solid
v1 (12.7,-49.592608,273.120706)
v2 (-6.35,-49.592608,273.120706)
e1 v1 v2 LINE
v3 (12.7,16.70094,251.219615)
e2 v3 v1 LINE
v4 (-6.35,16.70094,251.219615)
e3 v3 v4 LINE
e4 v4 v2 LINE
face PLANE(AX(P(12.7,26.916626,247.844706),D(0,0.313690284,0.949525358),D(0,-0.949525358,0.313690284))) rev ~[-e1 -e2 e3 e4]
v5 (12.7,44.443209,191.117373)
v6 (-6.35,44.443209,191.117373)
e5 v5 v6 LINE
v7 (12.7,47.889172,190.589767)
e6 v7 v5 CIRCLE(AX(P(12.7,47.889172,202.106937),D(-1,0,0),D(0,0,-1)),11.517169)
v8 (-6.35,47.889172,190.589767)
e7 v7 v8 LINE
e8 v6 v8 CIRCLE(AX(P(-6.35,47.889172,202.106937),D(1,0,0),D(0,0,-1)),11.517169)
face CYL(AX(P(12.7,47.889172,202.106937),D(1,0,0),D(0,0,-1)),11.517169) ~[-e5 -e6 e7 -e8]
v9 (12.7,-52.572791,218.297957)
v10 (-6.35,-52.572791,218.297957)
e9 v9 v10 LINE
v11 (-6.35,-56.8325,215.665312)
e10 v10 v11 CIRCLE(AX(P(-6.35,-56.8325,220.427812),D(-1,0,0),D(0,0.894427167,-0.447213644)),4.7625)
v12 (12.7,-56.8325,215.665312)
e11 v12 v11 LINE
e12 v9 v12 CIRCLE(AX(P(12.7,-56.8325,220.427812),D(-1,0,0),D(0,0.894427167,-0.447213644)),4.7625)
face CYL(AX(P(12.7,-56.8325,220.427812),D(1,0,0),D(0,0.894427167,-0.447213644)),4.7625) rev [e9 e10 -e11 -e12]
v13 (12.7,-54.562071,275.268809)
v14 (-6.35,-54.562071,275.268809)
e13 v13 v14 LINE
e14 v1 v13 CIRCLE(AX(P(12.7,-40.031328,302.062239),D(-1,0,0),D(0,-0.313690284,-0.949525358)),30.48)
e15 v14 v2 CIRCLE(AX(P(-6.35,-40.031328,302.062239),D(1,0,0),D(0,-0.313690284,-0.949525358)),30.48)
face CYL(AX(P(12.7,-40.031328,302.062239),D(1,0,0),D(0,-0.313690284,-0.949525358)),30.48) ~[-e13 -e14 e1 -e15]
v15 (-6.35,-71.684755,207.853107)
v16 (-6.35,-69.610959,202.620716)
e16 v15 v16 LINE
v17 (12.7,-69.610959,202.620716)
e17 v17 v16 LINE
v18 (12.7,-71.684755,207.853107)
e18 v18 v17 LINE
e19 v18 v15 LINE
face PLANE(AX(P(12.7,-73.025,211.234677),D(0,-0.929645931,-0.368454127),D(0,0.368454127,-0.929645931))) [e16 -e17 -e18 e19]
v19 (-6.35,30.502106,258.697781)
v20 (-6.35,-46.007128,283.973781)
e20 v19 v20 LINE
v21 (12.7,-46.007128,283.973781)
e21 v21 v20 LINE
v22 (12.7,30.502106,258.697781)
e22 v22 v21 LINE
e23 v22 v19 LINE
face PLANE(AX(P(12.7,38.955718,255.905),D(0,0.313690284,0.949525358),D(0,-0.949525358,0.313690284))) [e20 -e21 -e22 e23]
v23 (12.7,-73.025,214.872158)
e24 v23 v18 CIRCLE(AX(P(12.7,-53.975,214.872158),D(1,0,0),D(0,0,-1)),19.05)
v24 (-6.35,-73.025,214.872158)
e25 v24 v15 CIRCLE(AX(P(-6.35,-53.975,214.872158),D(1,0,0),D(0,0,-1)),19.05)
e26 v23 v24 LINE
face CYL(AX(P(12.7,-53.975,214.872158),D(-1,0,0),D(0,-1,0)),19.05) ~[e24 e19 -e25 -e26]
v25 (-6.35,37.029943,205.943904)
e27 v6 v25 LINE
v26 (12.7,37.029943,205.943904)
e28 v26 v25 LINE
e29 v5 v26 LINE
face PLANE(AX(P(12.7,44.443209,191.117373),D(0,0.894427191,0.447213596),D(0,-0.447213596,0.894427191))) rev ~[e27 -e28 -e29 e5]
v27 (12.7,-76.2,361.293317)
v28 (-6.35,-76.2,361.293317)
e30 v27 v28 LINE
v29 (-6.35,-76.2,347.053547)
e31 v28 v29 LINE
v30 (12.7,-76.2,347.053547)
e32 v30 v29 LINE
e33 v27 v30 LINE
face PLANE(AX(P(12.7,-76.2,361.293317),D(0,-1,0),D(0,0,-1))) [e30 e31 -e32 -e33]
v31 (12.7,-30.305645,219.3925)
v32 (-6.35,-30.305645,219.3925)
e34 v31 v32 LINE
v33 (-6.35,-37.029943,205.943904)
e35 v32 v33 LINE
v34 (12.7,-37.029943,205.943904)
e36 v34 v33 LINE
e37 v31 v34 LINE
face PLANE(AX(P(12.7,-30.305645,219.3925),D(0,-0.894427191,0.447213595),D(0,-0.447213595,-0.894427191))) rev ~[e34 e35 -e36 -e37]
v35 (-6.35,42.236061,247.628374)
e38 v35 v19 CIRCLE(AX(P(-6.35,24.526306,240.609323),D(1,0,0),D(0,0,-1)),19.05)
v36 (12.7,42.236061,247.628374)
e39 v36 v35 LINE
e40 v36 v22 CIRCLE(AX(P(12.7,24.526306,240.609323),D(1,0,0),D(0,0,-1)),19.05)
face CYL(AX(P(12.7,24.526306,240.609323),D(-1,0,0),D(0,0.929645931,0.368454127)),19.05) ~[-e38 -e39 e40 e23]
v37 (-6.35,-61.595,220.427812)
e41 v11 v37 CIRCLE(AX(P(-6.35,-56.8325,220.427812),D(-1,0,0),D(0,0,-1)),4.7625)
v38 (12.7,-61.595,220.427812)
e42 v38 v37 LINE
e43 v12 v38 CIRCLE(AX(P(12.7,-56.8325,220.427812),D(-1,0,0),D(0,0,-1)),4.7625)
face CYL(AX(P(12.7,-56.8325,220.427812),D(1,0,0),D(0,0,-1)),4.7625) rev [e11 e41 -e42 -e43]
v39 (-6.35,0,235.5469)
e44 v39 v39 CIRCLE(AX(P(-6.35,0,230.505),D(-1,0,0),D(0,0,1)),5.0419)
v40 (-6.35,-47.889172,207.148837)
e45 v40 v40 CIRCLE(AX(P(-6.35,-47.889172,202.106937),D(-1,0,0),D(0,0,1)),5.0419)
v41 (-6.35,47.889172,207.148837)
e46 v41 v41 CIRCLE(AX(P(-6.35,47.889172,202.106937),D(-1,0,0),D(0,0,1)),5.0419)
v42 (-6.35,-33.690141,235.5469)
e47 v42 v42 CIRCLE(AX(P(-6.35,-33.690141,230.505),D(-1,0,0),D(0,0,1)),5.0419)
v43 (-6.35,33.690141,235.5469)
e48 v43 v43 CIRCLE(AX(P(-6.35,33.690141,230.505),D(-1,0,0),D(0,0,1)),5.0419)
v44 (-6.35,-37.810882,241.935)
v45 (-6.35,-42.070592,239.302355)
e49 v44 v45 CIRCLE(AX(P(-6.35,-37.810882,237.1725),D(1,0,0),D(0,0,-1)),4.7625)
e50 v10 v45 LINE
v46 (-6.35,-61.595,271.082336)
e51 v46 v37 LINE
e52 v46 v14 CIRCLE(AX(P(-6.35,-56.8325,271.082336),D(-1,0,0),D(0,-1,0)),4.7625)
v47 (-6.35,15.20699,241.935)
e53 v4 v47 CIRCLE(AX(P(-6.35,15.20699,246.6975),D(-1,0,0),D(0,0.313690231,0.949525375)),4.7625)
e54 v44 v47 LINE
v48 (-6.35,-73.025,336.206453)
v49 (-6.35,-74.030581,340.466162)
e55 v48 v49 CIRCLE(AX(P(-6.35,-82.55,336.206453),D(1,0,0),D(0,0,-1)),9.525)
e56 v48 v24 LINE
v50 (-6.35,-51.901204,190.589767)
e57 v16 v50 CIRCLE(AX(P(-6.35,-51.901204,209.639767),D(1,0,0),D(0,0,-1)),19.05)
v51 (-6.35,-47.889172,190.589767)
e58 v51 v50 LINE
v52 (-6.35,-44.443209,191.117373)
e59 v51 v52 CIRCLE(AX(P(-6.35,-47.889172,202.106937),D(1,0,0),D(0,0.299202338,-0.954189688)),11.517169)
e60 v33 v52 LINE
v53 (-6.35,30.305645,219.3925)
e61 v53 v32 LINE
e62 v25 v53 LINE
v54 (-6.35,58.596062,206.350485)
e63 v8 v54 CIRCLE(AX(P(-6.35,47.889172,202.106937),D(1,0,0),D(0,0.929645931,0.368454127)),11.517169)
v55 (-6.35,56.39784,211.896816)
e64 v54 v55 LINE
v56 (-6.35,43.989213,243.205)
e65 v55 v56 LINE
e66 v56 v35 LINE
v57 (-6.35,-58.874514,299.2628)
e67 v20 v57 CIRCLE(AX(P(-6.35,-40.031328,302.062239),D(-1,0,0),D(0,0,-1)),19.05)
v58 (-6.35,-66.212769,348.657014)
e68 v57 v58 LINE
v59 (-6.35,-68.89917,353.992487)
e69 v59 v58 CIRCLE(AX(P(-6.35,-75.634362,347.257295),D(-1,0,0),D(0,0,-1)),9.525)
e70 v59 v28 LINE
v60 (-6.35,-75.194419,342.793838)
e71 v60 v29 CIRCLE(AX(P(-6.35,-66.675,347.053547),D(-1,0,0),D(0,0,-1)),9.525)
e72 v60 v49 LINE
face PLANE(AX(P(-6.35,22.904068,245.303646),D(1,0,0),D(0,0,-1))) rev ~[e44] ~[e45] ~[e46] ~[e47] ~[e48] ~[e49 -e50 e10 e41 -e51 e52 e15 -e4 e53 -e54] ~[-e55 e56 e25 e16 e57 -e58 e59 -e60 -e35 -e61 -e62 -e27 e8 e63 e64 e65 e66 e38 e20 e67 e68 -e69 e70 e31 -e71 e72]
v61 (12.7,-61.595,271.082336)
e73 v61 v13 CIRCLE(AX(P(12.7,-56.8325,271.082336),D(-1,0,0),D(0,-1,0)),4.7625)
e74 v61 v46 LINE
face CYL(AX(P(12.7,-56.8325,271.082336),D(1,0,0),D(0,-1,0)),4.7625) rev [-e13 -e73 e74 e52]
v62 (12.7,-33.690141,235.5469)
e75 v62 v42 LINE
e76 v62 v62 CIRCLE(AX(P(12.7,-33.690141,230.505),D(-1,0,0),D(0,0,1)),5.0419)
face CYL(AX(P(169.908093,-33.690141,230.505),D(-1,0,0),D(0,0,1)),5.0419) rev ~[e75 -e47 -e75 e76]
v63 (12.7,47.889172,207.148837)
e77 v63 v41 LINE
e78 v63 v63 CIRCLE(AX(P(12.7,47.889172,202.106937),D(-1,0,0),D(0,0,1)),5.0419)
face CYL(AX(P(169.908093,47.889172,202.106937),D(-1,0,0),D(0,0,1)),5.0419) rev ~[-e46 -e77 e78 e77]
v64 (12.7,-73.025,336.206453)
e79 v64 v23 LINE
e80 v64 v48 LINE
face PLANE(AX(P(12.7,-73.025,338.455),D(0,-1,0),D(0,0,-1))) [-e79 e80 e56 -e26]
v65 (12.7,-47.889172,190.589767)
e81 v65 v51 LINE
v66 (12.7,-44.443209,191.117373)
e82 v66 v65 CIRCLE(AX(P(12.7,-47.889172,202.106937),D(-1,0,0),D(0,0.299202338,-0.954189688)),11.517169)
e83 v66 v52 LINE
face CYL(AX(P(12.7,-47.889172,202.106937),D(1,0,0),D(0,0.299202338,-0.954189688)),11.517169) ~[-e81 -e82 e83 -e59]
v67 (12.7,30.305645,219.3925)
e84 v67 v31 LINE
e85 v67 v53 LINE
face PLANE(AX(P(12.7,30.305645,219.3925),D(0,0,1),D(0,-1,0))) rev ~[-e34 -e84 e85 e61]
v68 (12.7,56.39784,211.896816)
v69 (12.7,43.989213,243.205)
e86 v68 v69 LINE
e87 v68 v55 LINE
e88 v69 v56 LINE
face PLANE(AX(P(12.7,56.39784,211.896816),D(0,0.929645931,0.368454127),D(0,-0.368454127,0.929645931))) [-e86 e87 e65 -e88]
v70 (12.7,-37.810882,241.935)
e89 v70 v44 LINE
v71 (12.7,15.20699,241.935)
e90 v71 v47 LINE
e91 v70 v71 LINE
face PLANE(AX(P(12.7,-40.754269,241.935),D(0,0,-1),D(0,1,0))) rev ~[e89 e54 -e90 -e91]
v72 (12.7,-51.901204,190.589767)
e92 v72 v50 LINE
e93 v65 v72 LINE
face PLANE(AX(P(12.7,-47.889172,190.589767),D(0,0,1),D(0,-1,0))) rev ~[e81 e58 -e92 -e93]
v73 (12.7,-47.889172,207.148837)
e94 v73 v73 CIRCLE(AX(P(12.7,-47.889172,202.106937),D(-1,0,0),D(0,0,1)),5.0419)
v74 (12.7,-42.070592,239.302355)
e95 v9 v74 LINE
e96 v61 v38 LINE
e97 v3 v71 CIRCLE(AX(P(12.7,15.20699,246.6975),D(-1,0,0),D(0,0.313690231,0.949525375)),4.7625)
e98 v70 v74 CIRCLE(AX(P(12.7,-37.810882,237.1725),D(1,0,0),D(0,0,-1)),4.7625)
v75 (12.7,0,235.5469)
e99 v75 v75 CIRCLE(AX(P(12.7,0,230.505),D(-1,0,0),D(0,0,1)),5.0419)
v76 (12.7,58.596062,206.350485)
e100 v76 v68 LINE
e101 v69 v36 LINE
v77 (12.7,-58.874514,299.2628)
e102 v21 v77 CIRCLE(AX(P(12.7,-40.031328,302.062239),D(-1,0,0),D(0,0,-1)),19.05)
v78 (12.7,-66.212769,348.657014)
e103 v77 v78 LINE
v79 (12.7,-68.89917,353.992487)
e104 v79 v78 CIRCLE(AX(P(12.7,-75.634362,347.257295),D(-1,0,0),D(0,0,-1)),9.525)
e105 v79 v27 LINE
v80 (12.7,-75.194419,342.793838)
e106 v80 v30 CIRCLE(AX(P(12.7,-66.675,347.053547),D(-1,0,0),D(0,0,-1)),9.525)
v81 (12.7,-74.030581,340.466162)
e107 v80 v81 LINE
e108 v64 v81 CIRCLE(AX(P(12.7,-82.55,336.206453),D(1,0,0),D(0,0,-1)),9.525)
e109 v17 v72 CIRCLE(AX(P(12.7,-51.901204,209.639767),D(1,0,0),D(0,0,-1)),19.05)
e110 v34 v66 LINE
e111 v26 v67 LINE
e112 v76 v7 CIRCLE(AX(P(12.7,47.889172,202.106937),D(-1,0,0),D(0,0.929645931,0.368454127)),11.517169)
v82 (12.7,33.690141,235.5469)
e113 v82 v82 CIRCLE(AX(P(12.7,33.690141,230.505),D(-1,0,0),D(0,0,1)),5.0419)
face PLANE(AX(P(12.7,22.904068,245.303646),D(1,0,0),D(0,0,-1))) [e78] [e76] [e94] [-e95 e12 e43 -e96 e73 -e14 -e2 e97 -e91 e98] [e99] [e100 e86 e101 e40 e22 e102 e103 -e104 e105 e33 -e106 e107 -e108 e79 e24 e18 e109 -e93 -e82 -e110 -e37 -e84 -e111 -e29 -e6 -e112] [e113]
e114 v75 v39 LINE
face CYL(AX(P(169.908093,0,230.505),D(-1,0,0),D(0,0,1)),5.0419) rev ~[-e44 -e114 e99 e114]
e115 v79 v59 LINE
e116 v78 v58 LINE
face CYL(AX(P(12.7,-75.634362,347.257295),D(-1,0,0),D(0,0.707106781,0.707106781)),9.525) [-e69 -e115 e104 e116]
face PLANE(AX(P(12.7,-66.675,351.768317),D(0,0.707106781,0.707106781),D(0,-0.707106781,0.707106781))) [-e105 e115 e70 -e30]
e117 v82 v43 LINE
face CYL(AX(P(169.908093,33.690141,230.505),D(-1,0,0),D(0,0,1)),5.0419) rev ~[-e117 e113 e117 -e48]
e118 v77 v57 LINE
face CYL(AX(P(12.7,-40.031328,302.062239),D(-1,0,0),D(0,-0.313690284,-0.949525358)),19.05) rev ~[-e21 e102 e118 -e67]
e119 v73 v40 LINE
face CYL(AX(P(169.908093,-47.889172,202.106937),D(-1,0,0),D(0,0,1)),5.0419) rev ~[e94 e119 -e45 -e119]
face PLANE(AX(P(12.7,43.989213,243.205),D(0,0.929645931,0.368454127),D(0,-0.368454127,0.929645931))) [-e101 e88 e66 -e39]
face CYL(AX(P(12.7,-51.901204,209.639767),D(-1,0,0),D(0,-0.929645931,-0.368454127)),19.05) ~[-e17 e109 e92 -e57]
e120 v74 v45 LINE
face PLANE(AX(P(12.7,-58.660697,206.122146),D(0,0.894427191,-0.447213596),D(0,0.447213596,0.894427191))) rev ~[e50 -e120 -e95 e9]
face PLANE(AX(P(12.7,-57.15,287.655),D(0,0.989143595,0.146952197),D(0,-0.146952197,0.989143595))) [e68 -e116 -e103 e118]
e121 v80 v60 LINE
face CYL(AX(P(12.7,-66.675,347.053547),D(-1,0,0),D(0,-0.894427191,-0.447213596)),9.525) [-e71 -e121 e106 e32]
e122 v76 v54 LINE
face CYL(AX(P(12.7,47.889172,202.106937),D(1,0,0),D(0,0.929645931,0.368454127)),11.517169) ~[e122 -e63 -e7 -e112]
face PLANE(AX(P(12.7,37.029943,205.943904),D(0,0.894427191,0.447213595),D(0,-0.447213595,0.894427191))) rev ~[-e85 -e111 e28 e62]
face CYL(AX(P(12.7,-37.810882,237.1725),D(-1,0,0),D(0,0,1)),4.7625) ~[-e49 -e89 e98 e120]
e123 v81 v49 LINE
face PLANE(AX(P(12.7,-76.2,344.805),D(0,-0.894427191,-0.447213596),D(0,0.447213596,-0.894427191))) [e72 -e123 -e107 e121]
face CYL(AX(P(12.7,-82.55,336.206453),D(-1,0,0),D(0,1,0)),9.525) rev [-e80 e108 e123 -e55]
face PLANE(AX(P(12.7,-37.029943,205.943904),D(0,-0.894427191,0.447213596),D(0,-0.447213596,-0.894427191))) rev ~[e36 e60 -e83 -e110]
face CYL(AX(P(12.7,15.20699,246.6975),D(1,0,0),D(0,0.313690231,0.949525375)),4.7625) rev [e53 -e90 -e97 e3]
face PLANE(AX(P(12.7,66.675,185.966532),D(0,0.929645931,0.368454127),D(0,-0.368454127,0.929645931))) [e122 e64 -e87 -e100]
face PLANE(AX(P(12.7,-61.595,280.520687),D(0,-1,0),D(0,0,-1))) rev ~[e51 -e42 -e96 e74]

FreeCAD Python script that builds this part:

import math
import FreeCAD as App
import Part
import Sketcher
from FreeCAD import Vector
Q = App.Units.Quantity


def edges_at(feature, points):
    """Names of the edges that pass closest to the given points."""
    edges = feature.Shape.Edges
    near = lambda p: min(range(len(edges)), key=lambda i: edges[i].distToShape(Part.Vertex(*p))[0])
    return sorted({f"Edge{near(p) + 1}" for p in points})


def add_polygon(sketch, points):
    """Adds a closed chain of lines whose ends are joined by coincident constraints."""
    first, n = sketch.GeometryCount, len(points)
    for a, b in zip(points, points[1:] + points[:1]):
        sketch.addGeometry(Part.LineSegment(App.Vector(*a, 0), App.Vector(*b, 0)), False)
    for i in range(n):
        sketch.addConstraint(Sketcher.Constraint("Coincident", first + i, 2, first + (i + 1) % n, 1))

doc = App.newDocument("Part")
body = doc.addObject("PartDesign::Body", "Body")

sketch1 = doc.addObject("Sketcher::SketchObject", "Sketch")
body.addObject(sketch1)
sketch1.AttachmentSupport = (doc.YZ_Plane, [""])
sketch1.MapMode = "FlatFace"
sketch1.addGeometry(Part.LineSegment(Vector(0, -93.345, 0), Vector(50.8, -55.245, 0)), False)
sketch1.addGeometry(Part.LineSegment(Vector(50.8, -55.245, 0), Vector(50.8, 160.655, 0)), False)
sketch1.addGeometry(Part.ArcOfCircle(Part.Circle(Vector(0, 160.655, 0), Vector(0, 0, 1), 50.8), math.radians(0), math.radians(180)), False)
sketch1.addGeometry(Part.LineSegment(Vector(-50.8, 160.655, 0), Vector(-50.8, -55.245, 0)), False)
sketch1.addGeometry(Part.LineSegment(Vector(-50.8, -55.245, 0), Vector(0, -93.345, 0)), False)
sketch1.addGeometry(Part.Circle(Vector(0, 160.655, 0), Vector(0, 0, 1), 11.1125), False)
sketch1.addGeometry(Part.Circle(Vector(0, 88.9, 0), Vector(0, 0, 1), 7.9375), False)
sketch1.addGeometry(Part.Circle(Vector(0, 38.1, 0), Vector(0, 0, 1), 7.9375), False)
sketch1.addGeometry(Part.Circle(Vector(0, 0, 0), Vector(0, 0, 1), 7.9375), False)
sketch1.addConstraint(Sketcher.Constraint("Coincident", 0, 2, 1, 1))
sketch1.addConstraint(Sketcher.Constraint("Tangent", 1, 2, 2, 1))
sketch1.addConstraint(Sketcher.Constraint("Tangent", 2, 2, 3, 1))
sketch1.addConstraint(Sketcher.Constraint("Coincident", 3, 2, 4, 1))
sketch1.addConstraint(Sketcher.Constraint("Coincident", 4, 2, 0, 1))
sketch1.addConstraint(Sketcher.Constraint("Vertical", 1))
sketch1.addConstraint(Sketcher.Constraint("Vertical", 3))
sketch1.addConstraint(Sketcher.Constraint("Coincident", 8, 3, -1, 1))
sketch1.addConstraint(Sketcher.Constraint("Coincident", 5, 3, 2, 3))
sketch1.addConstraint(Sketcher.Constraint("Equal", 6, 7))
sketch1.addConstraint(Sketcher.Constraint("Equal", 7, 8))
sketch1.addConstraint(Sketcher.Constraint("Symmetric", 0, 2, 3, 2, -2))
sketch1.addConstraint(Sketcher.Constraint("PointOnObject", 6, 3, -2))
sketch1.addConstraint(Sketcher.Constraint("PointOnObject", 7, 3, -2))
sketch1.addConstraint(Sketcher.Constraint("PointOnObject", 4, 2, -2))
sketch1.addConstraint(Sketcher.Constraint("Radius", 2, Q("2 in")))
sketch1.addConstraint(Sketcher.Constraint("Diameter", 5, Q("0.875 in")))
sketch1.addConstraint(Sketcher.Constraint("Diameter", 6, Q("0.625 in")))
sketch1.addConstraint(Sketcher.Constraint("DistanceY", 1, 1, 1, 2, Q("8.5 in")))
sketch1.addConstraint(Sketcher.Constraint("DistanceY", 7, 3, 6, 3, Q("2 in")))
sketch1.addConstraint(Sketcher.Constraint("Distance", 0, Q("2.5 in")))
sketch1.addConstraint(Sketcher.Constraint("DistanceY", -1, 1, 6, 3, Q("3.5 in")))
sketch1.addConstraint(Sketcher.Constraint("DistanceY", -1, 1, 2, 3, Q("6.325 in")))
pad1 = doc.addObject("PartDesign::Pad", "Pad")
body.addObject(pad1)
pad1.Profile = sketch1
pad1.Length = Q("0.5 in")

sketch2 = doc.addObject("Sketcher::SketchObject", "Sketch001")
body.addObject(sketch2)
sketch2.AttachmentSupport = (doc.YZ_Plane, [""])
sketch2.MapMode = "FlatFace"
sketch2.addGeometry(Part.Circle(Vector(17.691105, -17.691105, 0), Vector(0, 0, 1), 2.2479), False)
sketch2.addGeometry(Part.Circle(Vector(17.691105, 17.691105, 0), Vector(0, 0, 1), 2.2479), False)
sketch2.addGeometry(Part.Circle(Vector(-17.691105, 17.691105, 0), Vector(0, 0, 1), 2.2479), False)
sketch2.addGeometry(Part.Circle(Vector(-17.691105, -17.691105, 0), Vector(0, 0, 1), 2.2479), False)
sketch2.addConstraint(Sketcher.Constraint("Equal", 0, 1))
sketch2.addConstraint(Sketcher.Constraint("Equal", 1, 2))
sketch2.addConstraint(Sketcher.Constraint("Equal", 2, 3))
sketch2.addConstraint(Sketcher.Constraint("Symmetric", 0, 3, 2, 3, -1, 1))
sketch2.addConstraint(Sketcher.Constraint("Symmetric", 1, 3, 3, 3, -1, 1))
sketch2.addConstraint(Sketcher.Constraint("Symmetric", 1, 3, 2, 3, -2))
sketch2.addConstraint(Sketcher.Constraint("Diameter", 0, Q("0.177 in")))
sketch2.addConstraint(Sketcher.Constraint("DistanceX", -1, 1, 0, 3, Q("0.6965002 in")))
sketch2.addConstraint(Sketcher.Constraint("DistanceY", 0, 3, -1, 1, Q("0.6965002 in")))
doc.recompute()
hole = doc.addObject("PartDesign::Hole", "Hole")
body.addObject(hole)
hole.Profile = sketch2
hole.ThreadType = "None"
hole.Diameter = Q("0.177 in")
hole.DepthType = "ThroughAll"
hole.Reversed = True

sketch3 = doc.addObject("Sketcher::SketchObject", "Sketch002")
body.addObject(sketch3)
sketch3.AttachmentSupport = (doc.YZ_Plane, [""])
sketch3.MapMode = "FlatFace"
sketch3.addGeometry(Part.Circle(Vector(0, 0, 0), Vector(0, 0, 1), 18.415), False)
sketch3.addConstraint(Sketcher.Constraint("Coincident", 0, 3, -1, 1))
sketch3.addConstraint(Sketcher.Constraint("Diameter", 0, Q("1.45 in")))
pocket1 = doc.addObject("PartDesign::Pocket", "Pocket")
body.addObject(pocket1)
pocket1.Profile = sketch3
pocket1.Type = "ThroughAll"
pocket1.Reversed = True

sketch4 = doc.addObject("Sketcher::SketchObject", "Sketch003")
body.addObject(sketch4)
sketch4.AttachmentSupport = (doc.YZ_Plane, [""])
sketch4.MapMode = "FlatFace"
sketch4.addGeometry(Part.Circle(Vector(0, -55.245, 0), Vector(0, 0, 1), 9.525), False)
sketch4.addConstraint(Sketcher.Constraint("PointOnObject", 0, 3, -2))
sketch4.addConstraint(Sketcher.Constraint("Diameter", 0, Q("0.75 in")))
sketch4.addConstraint(Sketcher.Constraint("DistanceY", 0, 3, -1, 1, Q("2.175 in")))
pocket2 = doc.addObject("PartDesign::Pocket", "Pocket001")
body.addObject(pocket2)
pocket2.Profile = sketch4
pocket2.Type = "ThroughAll"
pocket2.Reversed = True

sketch5 = doc.addObject("Sketcher::SketchObject", "Sketch004")
body.addObject(sketch5)
sketch5.AttachmentSupport = (doc.YZ_Plane, [""])
sketch5.MapMode = "FlatFace"
sketch5.AttachmentOffset = App.Placement(Vector(0, 0, 0.5 * 25.4), App.Rotation())
add_polygon(sketch5, [(25.4, 211.455), (50.8, 160.655), (50.8, 233.239746), (-50.8, 233.239746), (-50.8, 160.655), (-25.4, 211.455)])
sketch5.addConstraint(Sketcher.Constraint("Vertical", 1))
sketch5.addConstraint(Sketcher.Constraint("Horizontal", 2))
sketch5.addConstraint(Sketcher.Constraint("Vertical", 3))
sketch5.addConstraint(Sketcher.Constraint("Horizontal", 5))
sketch5.addConstraint(Sketcher.Constraint("Symmetric", 0, 2, 3, 2, -2))
sketch5.addConstraint(Sketcher.Constraint("Equal", 0, 4))
sketch5.addConstraint(Sketcher.Constraint("DistanceX", 2, 2, 2, 1, Q("4 in")))
sketch5.addConstraint(Sketcher.Constraint("DistanceX", 5, 1, 5, 2, Q("2 in")))
sketch5.addConstraint(Sketcher.Constraint("DistanceY", 3, 2, 4, 2, Q("2 in")))
sketch5.addConstraint(Sketcher.Constraint("DistanceY", -1, 1, 0, 2, Q("6.325 in")))
sketch5.addConstraint(Sketcher.Constraint("DistanceY", 1, 1, 1, 2, 72.584746))
pocket3 = doc.addObject("PartDesign::Pocket", "Pocket002")
body.addObject(pocket3)
pocket3.Profile = sketch5
pocket3.Type = "ThroughAll"

sketch6 = doc.addObject("Sketcher::SketchObject", "Sketch005")
body.addObject(sketch6)
sketch6.AttachmentSupport = (doc.YZ_Plane, [""])
sketch6.MapMode = "FlatFace"
sketch6.AttachmentOffset = App.Placement(Vector(0, 0, 0.5 * 25.4), App.Rotation())
add_polygon(sketch6, [(50.8, 160.655), (25.4, 211.455), (-25.4, 211.455), (-50.8, 160.655), (-40.64, 160.655), (0, 202.749323), (40.64, 160.655)])
sketch6.addConstraint(Sketcher.Constraint("Horizontal", 1))
sketch6.addConstraint(Sketcher.Constraint("Horizontal", 3))
sketch6.addConstraint(Sketcher.Constraint("Horizontal", 6))
sketch6.addConstraint(Sketcher.Constraint("Symmetric", 3, 2, 5, 2, -2))
sketch6.addConstraint(Sketcher.Constraint("PointOnObject", 4, 2, -2))
sketch6.addConstraint(Sketcher.Constraint("Equal", 3, 6))
sketch6.addConstraint(Sketcher.Constraint("Equal", 0, 2))
sketch6.addConstraint(Sketcher.Constraint("DistanceX", 1, 2, 1, 1, Q("2 in")))
sketch6.addConstraint(Sketcher.Constraint("DistanceX", 3, 1, 3, 2, Q("0.4 in")))
sketch6.addConstraint(Sketcher.Constraint("DistanceX", 2, 2, -1, 1, Q("2 in")))
sketch6.addConstraint(Sketcher.Constraint("DistanceY", 2, 2, 1, 2, Q("2 in")))
sketch6.addConstraint(Sketcher.Constraint("DistanceY", -1, 1, 0, 2, Q("8.325 in")))
sketch6.addConstraint(Sketcher.Constraint("Distance", 4, 58.511039))
pad2 = doc.addObject("PartDesign::Pad", "Pad001")
body.addObject(pad2)
pad2.Profile = sketch6
pad2.Length = Q("0.5 in")
pad2.Reversed = True

sketch7 = doc.addObject("Sketcher::SketchObject", "Sketch006")
body.addObject(sketch7)
sketch7.AttachmentSupport = (doc.YZ_Plane, [""])
sketch7.MapMode = "FlatFace"
add_polygon(sketch7, [(-19.05, -79.0575), (19.05, -79.0575), (0, -93.345)])
sketch7.addConstraint(Sketcher.Constraint("Horizontal", 0))
sketch7.addConstraint(Sketcher.Constraint("PointOnObject", 1, 2, -2))
sketch7.addConstraint(Sketcher.Constraint("Equal", 1, 2))
sketch7.addConstraint(Sketcher.Constraint("DistanceX", 0, 1, 0, 2, Q("1.5 in")))
sketch7.addConstraint(Sketcher.Constraint("Distance", 1, Q("0.9375 in")))
sketch7.addConstraint(Sketcher.Constraint("DistanceY", 1, 2, -1, 1, Q("3.675 in")))
pocket4 = doc.addObject("PartDesign::Pocket", "Pocket003")
body.addObject(pocket4)
pocket4.Profile = sketch7
pocket4.Type = "ThroughAll"
pocket4.Reversed = True

sketch8 = doc.addObject("Sketcher::SketchObject", "Sketch007")
body.addObject(sketch8)
sketch8.AttachmentSupport = (doc.XZ_Plane, [""])
sketch8.MapMode = "FlatFace"
sketch8.AttachmentOffset = App.Placement(Vector(0, 0, -2 * 25.4), App.Rotation())
add_polygon(sketch8, [(0, -36.322), (0, 141.732), (12.7, 141.732), (12.7, -36.322)])
sketch8.addConstraint(Sketcher.Constraint("Vertical", 0))
sketch8.addConstraint(Sketcher.Constraint("Horizontal", 1))
sketch8.addConstraint(Sketcher.Constraint("Vertical", 2))
sketch8.addConstraint(Sketcher.Constraint("Horizontal", 3))
sketch8.addConstraint(Sketcher.Constraint("PointOnObject", 0, 2, -2))
sketch8.addConstraint(Sketcher.Constraint("DistanceX", 1, 1, 1, 2, Q("0.5 in")))
sketch8.addConstraint(Sketcher.Constraint("DistanceY", 0, 1, 0, 2, Q("7.01 in")))
sketch8.addConstraint(Sketcher.Constraint("DistanceY", -1, 1, 0, 2, Q("5.58 in")))
pocket5 = doc.addObject("PartDesign::Pocket", "Pocket004")
body.addObject(pocket5)
pocket5.Profile = sketch8
pocket5.Length = Q("0.125 in")
pocket5.Reversed = True
doc.recompute()

mirrored = doc.addObject("PartDesign::Mirrored", "Mirrored")
body.addObject(mirrored)
mirrored.Originals = [pocket5]
mirrored.MirrorPlane = (doc.XZ_Plane, [""])
body.Tip = mirrored

sketch9 = doc.addObject("Sketcher::SketchObject", "Sketch008")
body.addObject(sketch9)
sketch9.AttachmentSupport = (doc.YZ_Plane, [""])
sketch9.MapMode = "FlatFace"
sketch9.AttachmentOffset = App.Placement(Vector(0, 0, 0.5 * 25.4), App.Rotation())
add_polygon(sketch9, [(-53.34, 161.254613), (-53.34, 139.192), (-50.165, 139.192), (-50.165, -33.782), (-53.34, -33.782), (-53.34, -56.515), (-19.896667, -81.5975), (19.896667, -81.5975), (53.34, -56.515), (53.34, -33.782), (50.165, -33.782), (50.165, 139.192), (53.34, 139.192), (53.34, 161.254613), (26.969806, 213.995), (-26.969806, 213.995)])
sketch9.addConstraint(Sketcher.Constraint("Vertical", 0))
sketch9.addConstraint(Sketcher.Constraint("Horizontal", 1))
sketch9.addConstraint(Sketcher.Constraint("Vertical", 2))
sketch9.addConstraint(Sketcher.Constraint("Horizontal", 3))
sketch9.addConstraint(Sketcher.Constraint("Vertical", 4))
sketch9.addConstraint(Sketcher.Constraint("Horizontal", 6))
sketch9.addConstraint(Sketcher.Constraint("Vertical", 8))
sketch9.addConstraint(Sketcher.Constraint("Horizontal", 9))
sketch9.addConstraint(Sketcher.Constraint("Vertical", 10))
sketch9.addConstraint(Sketcher.Constraint("Horizontal", 11))
sketch9.addConstraint(Sketcher.Constraint("Vertical", 12))
sketch9.addConstraint(Sketcher.Constraint("Horizontal", 14))
sketch9.addConstraint(Sketcher.Constraint("Symmetric", 4, 2, 7, 2, -2))
sketch9.addConstraint(Sketcher.Constraint("Symmetric", 2, 2, 9, 2, -2))
sketch9.addConstraint(Sketcher.Constraint("Symmetric", 0, 2, 11, 2, -2))
sketch9.addConstraint(Sketcher.Constraint("Horizontal", 12, 2, 15, 2))
sketch9.addConstraint(Sketcher.Constraint("Vertical", 0, 2, 3, 2))
sketch9.addConstraint(Sketcher.Constraint("Equal", 5, 7))
sketch9.addConstraint(Sketcher.Constraint("Equal", 13, 15))
sketch9.addConstraint(Sketcher.Constraint("DistanceY", 2, 2, 2, 1, Q("6.81 in")))
sketch9.addConstraint(Sketcher.Constraint("DistanceX", 0, 2, -1, 1, Q("2.1 in")))
sketch9.addConstraint(Sketcher.Constraint("DistanceX", 1, 1, 1, 2, Q("0.125 in")))
sketch9.addConstraint(Sketcher.Constraint("DistanceY", 4, 2, 4, 1, Q("0.895 in")))
sketch9.addConstraint(Sketcher.Constraint("DistanceY", -1, 1, 0, 2, Q("5.48 in")))
sketch9.addConstraint(Sketcher.Constraint("DistanceY", -1, 1, 13, 2, Q("8.425 in")))
sketch9.addConstraint(Sketcher.Constraint("DistanceY", 5, 2, -1, 1, Q("3.2125 in")))
sketch9.addConstraint(Sketcher.Constraint("DistanceX", 6, 1, 6, 2, 39.793333))
sketch9.addConstraint(Sketcher.Constraint("DistanceX", 14, 2, 14, 1, 53.939613))
sketch9.addConstraint(Sketcher.Constraint("DistanceY", 0, 2, 0, 1, 22.062613))
pocket6 = doc.addObject("PartDesign::Pocket", "Pocket005")
body.addObject(pocket6)
pocket6.Profile = sketch9
pocket6.Type = "ThroughAll"
body2 = doc.addObject("PartDesign::Body", "Body001")

sketch10 = doc.addObject("Sketcher::SketchObject", "Sketch009")
body2.addObject(sketch10)
sketch10.AttachmentSupport = (doc.getObject("YZ_Plane001"), [""])
sketch10.MapMode = "FlatFace"
sketch10.AttachmentOffset = App.Placement(Vector(0, 0, 0.5 * 25.4), App.Rotation())
add_polygon(sketch10, [(56.39784, 211.896816), (43.989213, 243.205), (-43.989213, 243.205), (-56.39784, 211.896816), (-66.675, 185.966532), (-66.675, 166.916532), (-57.15, 162.154032), (-29.324516, 217.805), (29.324516, 217.805), (57.15, 162.154032), (66.675, 166.916532), (66.675, 185.966532)])
sketch10.addConstraint(Sketcher.Constraint("Horizontal", 1))
sketch10.addConstraint(Sketcher.Constraint("Vertical", 4))
sketch10.addConstraint(Sketcher.Constraint("Horizontal", 7))
sketch10.addConstraint(Sketcher.Constraint("Vertical", 10))
sketch10.addConstraint(Sketcher.Constraint("Symmetric", 5, 2, 8, 2, -2))
sketch10.addConstraint(Sketcher.Constraint("Symmetric", 4, 2, 9, 2, -2))
sketch10.addConstraint(Sketcher.Constraint("Symmetric", 2, 2, 11, 2, -2))
sketch10.addConstraint(Sketcher.Constraint("Parallel", 2, 3))
sketch10.addConstraint(Sketcher.Constraint("Perpendicular", 5, 6))
sketch10.addConstraint(Sketcher.Constraint("Perpendicular", 8, 9))
sketch10.addConstraint(Sketcher.Constraint("Parallel", 0, 11))
sketch10.addConstraint(Sketcher.Constraint("Horizontal", 3, 2, 10, 2))
sketch10.addConstraint(Sketcher.Constraint("DistanceY", 6, 2, 1, 2, Q("1 in")))
sketch10.addConstraint(Sketcher.Constraint("DistanceY", 4, 2, 4, 1, Q("0.75 in")))
sketch10.addConstraint(Sketcher.Constraint("DistanceX", 5, 2, 8, 2, Q("4.5 in")))
sketch10.addConstraint(Sketcher.Constraint("DistanceY", -1, 1, 0, 2, Q("9.575 in")))
sketch10.addConstraint(Sketcher.Constraint("DistanceX", 3, 2, -1, 1, Q("2.625 in")))
sketch10.addConstraint(Sketcher.Constraint("DistanceY", 5, 2, 4, 2, Q("0.1875 in")))
sketch10.addConstraint(Sketcher.Constraint("DistanceX", 7, 1, 7, 2, 58.649032))
sketch10.addConstraint(Sketcher.Constraint("DistanceX", 1, 2, 1, 1, 87.978425))
sketch10.addConstraint(Sketcher.Constraint("DistanceX", 2, 2, -1, 1, 56.39784))
pad3 = doc.addObject("PartDesign::Pad", "Pad002")
body2.addObject(pad3)
pad3.Profile = sketch10
pad3.Length = Q("0.75 in")
pad3.Reversed = True

sketch11 = doc.addObject("Sketcher::SketchObject", "Sketch010")
body2.addObject(sketch11)
sketch11.AttachmentSupport = (doc.getObject("YZ_Plane001"), [""])
sketch11.MapMode = "FlatFace"
sketch11.AttachmentOffset = App.Placement(Vector(0, 0, 0.5 * 25.4), App.Rotation())
sketch11.addGeometry(Part.Circle(Vector(0, 230.505, 0), Vector(0, 0, 1), 5.0419), False)
sketch11.addGeometry(Part.Circle(Vector(33.690141, 230.505, 0), Vector(0, 0, 1), 5.0419), False)
sketch11.addGeometry(Part.Circle(Vector(47.889172, 202.106937, 0), Vector(0, 0, 1), 5.0419), False)
sketch11.addGeometry(Part.Circle(Vector(-33.690141, 230.505, 0), Vector(0, 0, 1), 5.0419), False)
sketch11.addGeometry(Part.Circle(Vector(-47.889172, 202.106937, 0), Vector(0, 0, 1), 5.0419), False)
sketch11.addConstraint(Sketcher.Constraint("Equal", 0, 1))
sketch11.addConstraint(Sketcher.Constraint("Equal", 1, 2))
sketch11.addConstraint(Sketcher.Constraint("Equal", 2, 3))
sketch11.addConstraint(Sketcher.Constraint("Equal", 3, 4))
sketch11.addConstraint(Sketcher.Constraint("Symmetric", 1, 3, 3, 3, -2))
sketch11.addConstraint(Sketcher.Constraint("Symmetric", 2, 3, 4, 3, -2))
sketch11.addConstraint(Sketcher.Constraint("PointOnObject", 0, 3, -2))
sketch11.addConstraint(Sketcher.Constraint("Horizontal", 0, 3, 1, 3))
sketch11.addConstraint(Sketcher.Constraint("Diameter", 0, Q("0.397 in")))
sketch11.addConstraint(Sketcher.Constraint("DistanceY", -1, 1, 0, 3, Q("9.075 in")))
sketch11.addConstraint(Sketcher.Constraint("DistanceX", -1, 1, 1, 3, 33.690141))
sketch11.addConstraint(Sketcher.Constraint("DistanceX", 1, 3, 2, 3, 14.199032))
sketch11.addConstraint(Sketcher.Constraint("DistanceY", -1, 1, 2, 3, 202.106937))
doc.recompute()
hole2 = doc.addObject("PartDesign::Hole", "Hole001")
body2.addObject(hole2)
hole2.Profile = sketch11
hole2.ThreadType = "None"
hole2.Diameter = Q("0.397 in")
hole2.DepthType = "ThroughAll"

sketch12 = doc.addObject("Sketcher::SketchObject", "Sketch011")
body2.addObject(sketch12)
sketch12.AttachmentSupport = (doc.getObject("YZ_Plane001"), [""])
sketch12.MapMode = "FlatFace"
sketch12.AttachmentOffset = App.Placement(Vector(0, 0, 0.5 * 25.4), App.Rotation())
sketch12.addGeometry(Part.ArcOfCircle(Part.Circle(Vector(47.889172, 202.106937, 0), Vector(0, 0, 1), 11.517169), math.radians(-107.4097), math.radians(-90)), False)
sketch12.addGeometry(Part.LineSegment(Vector(44.443209, 191.117373, 0), Vector(37.029943, 205.943904, 0)), False)
sketch12.addGeometry(Part.LineSegment(Vector(37.029943, 205.943904, 0), Vector(30.305645, 219.3925, 0)), False)
sketch12.addGeometry(Part.LineSegment(Vector(30.305645, 219.3925, 0), Vector(-30.305645, 219.3925, 0)), False)
sketch12.addGeometry(Part.LineSegment(Vector(-30.305645, 219.3925, 0), Vector(-37.029943, 205.943904, 0)), False)
sketch12.addGeometry(Part.LineSegment(Vector(-37.029943, 205.943904, 0), Vector(-44.443209, 191.117373, 0)), False)
sketch12.addGeometry(Part.ArcOfCircle(Part.Circle(Vector(-47.889172, 202.106937, 0), Vector(0, 0, 1), 11.517169), math.radians(-90), math.radians(-72.5903)), False)
sketch12.addGeometry(Part.LineSegment(Vector(-47.889172, 190.589767, 0), Vector(-64.842635, 190.589767, 0)), False)
sketch12.addGeometry(Part.LineSegment(Vector(-64.842635, 190.589767, 0), Vector(-66.675, 185.966532, 0)), False)
sketch12.addGeometry(Part.LineSegment(Vector(-66.675, 185.966532, 0), Vector(-66.675, 166.916532, 0)), False)
sketch12.addGeometry(Part.LineSegment(Vector(-66.675, 166.916532, 0), Vector(-57.15, 162.154032, 0)), False)
sketch12.addGeometry(Part.LineSegment(Vector(-57.15, 162.154032, 0), Vector(-42.172736, 192.10856, 0)), False)
sketch12.addGeometry(Part.LineSegment(Vector(-42.172736, 192.10856, 0), Vector(-36.460609, 203.532814, 0)), False)
sketch12.addGeometry(Part.LineSegment(Vector(-36.460609, 203.532814, 0), Vector(-29.324516, 217.805, 0)), False)
sketch12.addGeometry(Part.LineSegment(Vector(-29.324516, 217.805, 0), Vector(29.324516, 217.805, 0)), False)
sketch12.addGeometry(Part.LineSegment(Vector(29.324516, 217.805, 0), Vector(36.460609, 203.532814, 0)), False)
sketch12.addGeometry(Part.LineSegment(Vector(36.460609, 203.532814, 0), Vector(42.172736, 192.10856, 0)), False)
sketch12.addGeometry(Part.LineSegment(Vector(42.172736, 192.10856, 0), Vector(57.15, 162.154032, 0)), False)
sketch12.addGeometry(Part.LineSegment(Vector(57.15, 162.154032, 0), Vector(66.675, 166.916532, 0)), False)
sketch12.addGeometry(Part.LineSegment(Vector(66.675, 166.916532, 0), Vector(66.675, 185.966532, 0)), False)
sketch12.addGeometry(Part.LineSegment(Vector(66.675, 185.966532, 0), Vector(58.596062, 206.350485, 0)), False)
sketch12.addGeometry(Part.ArcOfCircle(Part.Circle(Vector(47.889172, 202.106937, 0), Vector(0, 0, 1), 11.517169), math.radians(-90), math.radians(21.620311)), False)
sketch12.addConstraint(Sketcher.Constraint("Coincident", 0, 1, 1, 1))
sketch12.addConstraint(Sketcher.Constraint("Coincident", 1, 2, 2, 1))
sketch12.addConstraint(Sketcher.Constraint("Coincident", 2, 2, 3, 1))
sketch12.addConstraint(Sketcher.Constraint("Coincident", 3, 2, 4, 1))
sketch12.addConstraint(Sketcher.Constraint("Coincident", 4, 2, 5, 1))
sketch12.addConstraint(Sketcher.Constraint("Coincident", 5, 2, 6, 2))
sketch12.addConstraint(Sketcher.Constraint("Tangent", 6, 1, 7, 1))
sketch12.addConstraint(Sketcher.Constraint("Coincident", 7, 2, 8, 1))
sketch12.addConstraint(Sketcher.Constraint("Coincident", 8, 2, 9, 1))
sketch12.addConstraint(Sketcher.Constraint("Coincident", 9, 2, 10, 1))
sketch12.addConstraint(Sketcher.Constraint("Coincident", 10, 2, 11, 1))
sketch12.addConstraint(Sketcher.Constraint("Coincident", 11, 2, 12, 1))
sketch12.addConstraint(Sketcher.Constraint("Coincident", 12, 2, 13, 1))
sketch12.addConstraint(Sketcher.Constraint("Coincident", 13, 2, 14, 1))
sketch12.addConstraint(Sketcher.Constraint("Coincident", 14, 2, 15, 1))
sketch12.addConstraint(Sketcher.Constraint("Coincident", 15, 2, 16, 1))
sketch12.addConstraint(Sketcher.Constraint("Coincident", 16, 2, 17, 1))
sketch12.addConstraint(Sketcher.Constraint("Coincident", 17, 2, 18, 1))
sketch12.addConstraint(Sketcher.Constraint("Coincident", 18, 2, 19, 1))
sketch12.addConstraint(Sketcher.Constraint("Coincident", 19, 2, 20, 1))
sketch12.addConstraint(Sketcher.Constraint("Tangent", 20, 2, 21, 2))
sketch12.addConstraint(Sketcher.Constraint("Tangent", 21, 1, 0, 2))
sketch12.addConstraint(Sketcher.Constraint("Horizontal", 3))
sketch12.addConstraint(Sketcher.Constraint("Horizontal", 7))
sketch12.addConstraint(Sketcher.Constraint("Vertical", 9))
sketch12.addConstraint(Sketcher.Constraint("Horizontal", 14))
sketch12.addConstraint(Sketcher.Constraint("Vertical", 19))
sketch12.addConstraint(Sketcher.Constraint("Equal", 0, 6))
sketch12.addConstraint(Sketcher.Constraint("Equal", 6, 21))
sketch12.addConstraint(Sketcher.Constraint("Symmetric", 0, 3, 6, 3, -2))
sketch12.addConstraint(Sketcher.Constraint("Symmetric", 1, 2, 4, 2, -2))
sketch12.addConstraint(Sketcher.Constraint("Symmetric", 12, 2, 15, 2, -2))
sketch12.addConstraint(Sketcher.Constraint("Symmetric", 11, 2, 16, 2, -2))
sketch12.addConstraint(Sketcher.Constraint("Symmetric", 10, 2, 17, 2, -2))
sketch12.addConstraint(Sketcher.Constraint("Symmetric", 9, 2, 18, 2, -2))
sketch12.addConstraint(Sketcher.Constraint("Parallel", 1, 2))
sketch12.addConstraint(Sketcher.Constraint("Parallel", 4, 5))
sketch12.addConstraint(Sketcher.Constraint("Perpendicular", 5, 10))
sketch12.addConstraint(Sketcher.Constraint("Perpendicular", 10, 11))
sketch12.addConstraint(Sketcher.Constraint("Parallel", 11, 12))
sketch12.addConstraint(Sketcher.Constraint("Parallel", 12, 13))
sketch12.addConstraint(Sketcher.Constraint("Parallel", 2, 15))
sketch12.addConstraint(Sketcher.Constraint("Parallel", 15, 16))
sketch12.addConstraint(Sketcher.Constraint("Horizontal", 8, 2, 19, 2))
sketch12.addConstraint(Sketcher.Constraint("Vertical", 0, 3, 21, 1))
sketch12.addConstraint(Sketcher.Constraint("DistanceY", 9, 2, 9, 1, Q("0.75 in")))
sketch12.addConstraint(Sketcher.Constraint("DistanceX", 10, 2, -1, 1, Q("2.25 in")))
sketch12.addConstraint(Sketcher.Constraint("DistanceX", 8, 2, -1, 1, Q("2.625 in")))
sketch12.addConstraint(Sketcher.Constraint("DistanceY", -1, 1, 13, 2, Q("8.575 in")))
sketch12.addConstraint(Sketcher.Constraint("Radius", 0, 11.517169))
sketch12.addConstraint(Sketcher.Constraint("DistanceY", 10, 2, 9, 2, Q("0.1875 in")))
sketch12.addConstraint(Sketcher.Constraint("DistanceY", 13, 2, 3, 2, Q("0.0625 in")))
sketch12.addConstraint(Sketcher.Constraint("DistanceX", 3, 2, 3, 1, 60.61129))
sketch12.addConstraint(Sketcher.Constraint("DistanceX", 14, 1, 14, 2, 58.649032))
sketch12.addConstraint(Sketcher.Constraint("DistanceX", 2, 2, 1, 2, 6.724298))
sketch12.addConstraint(Sketcher.Constraint("DistanceX", 7, 2, 11, 2, 22.669899))
sketch12.addConstraint(Sketcher.Constraint("DistanceX", 5, 2, 12, 2, 7.982599))
sketch12.addConstraint(Sketcher.Constraint("Distance", 11, 33.490181))
sketch12.addConstraint(Sketcher.Constraint("Distance", 13, 15.956789))
sketch12.addConstraint(Sketcher.Constraint("DistanceX", 7, 2, 7, 1, 16.953463))
pocket7 = doc.addObject("PartDesign::Pocket", "Pocket006")
body2.addObject(pocket7)
pocket7.Profile = sketch12
pocket7.Type = "ThroughAll"

sketch13 = doc.addObject("Sketcher::SketchObject", "Sketch012")
body2.addObject(sketch13)
sketch13.AttachmentSupport = (doc.getObject("YZ_Plane001"), [""])
sketch13.MapMode = "FlatFace"
sketch13.AttachmentOffset = App.Placement(Vector(0, 0, 0.5 * 25.4), App.Rotation())
add_polygon(sketch13, [(-73.025, 338.455), (-73.025, 211.234677), (-64.842635, 190.589767), (-43.989213, 243.205), (43.989213, 243.205), (38.955718, 255.905), (-57.15, 287.655), (-66.675, 351.768317), (-76.2, 361.293317), (-76.2, 344.805)])
sketch13.addConstraint(Sketcher.Constraint("Vertical", 0))
sketch13.addConstraint(Sketcher.Constraint("Horizontal", 3))
sketch13.addConstraint(Sketcher.Constraint("Vertical", 8))
sketch13.addConstraint(Sketcher.Constraint("Parallel", 1, 4))
sketch13.addConstraint(Sketcher.Constraint("DistanceX", 7, 2, -1, 1, Q("3 in")))
sketch13.addConstraint(Sketcher.Constraint("Angle", 7, Q("135 deg")))
sketch13.addConstraint(Sketcher.Constraint("DistanceY", 2, 2, 8, 2, Q("4 in")))
sketch13.addConstraint(Sketcher.Constraint("DistanceY", 5, 2, 9, 2, Q("2 in")))
sketch13.addConstraint(Sketcher.Constraint("DistanceY", 3, 2, 4, 2, Q("0.5 in")))
sketch13.addConstraint(Sketcher.Constraint("DistanceX", 5, 2, -1, 1, Q("2.25 in")))
sketch13.addConstraint(Sketcher.Constraint("DistanceY", 2, 2, 5, 2, Q("1.75 in")))
sketch13.addConstraint(Sketcher.Constraint("DistanceX", 0, 2, 6, 2, Q("0.25 in")))
sketch13.addConstraint(Sketcher.Constraint("DistanceX", 0, 2, -1, 1, Q("2.875 in")))
sketch13.addConstraint(Sketcher.Constraint("DistanceY", -1, 1, 2, 2, Q("9.575 in")))
sketch13.addConstraint(Sketcher.Constraint("Distance", 1, 22.207282))
sketch13.addConstraint(Sketcher.Constraint("DistanceX", 3, 1, 3, 2, 87.978425))
sketch13.addConstraint(Sketcher.Constraint("DistanceY", 0, 2, 0, 1, 127.220323))
sketch13.addConstraint(Sketcher.Constraint("DistanceY", 8, 2, 8, 1, 16.488317))
sketch13.addConstraint(Sketcher.Constraint("DistanceX", -1, 1, 4, 2, 38.955718))
sketch13.addConstraint(Sketcher.Constraint("DistanceY", 1, 2, 0, 2, 20.644909))
pad4 = doc.addObject("PartDesign::Pad", "Pad003")
body2.addObject(pad4)
pad4.Profile = sketch13
pad4.Length = Q("0.75 in")
pad4.Reversed = True
doc.recompute()

fillet = doc.addObject("PartDesign::Fillet", "Fillet")
body2.addObject(fillet)
fillet.Base = (pad4, edges_at(pad4, [
    (3.175, -73.025, 211.235),
    (3.175, -57.15, 287.655),
    (3.175, 38.956, 255.905),
    (3.175, -64.843, 190.59),
]))
fillet.Radius = Q("0.75 in")
doc.recompute()

fillet2 = doc.addObject("PartDesign::Fillet", "Fillet001")
body2.addObject(fillet2)
fillet2.Base = (fillet, edges_at(fillet, [(3.175, -73.025, 338.455), (3.175, -76.2, 344.805), (3.175, -66.675, 351.768)]))
fillet2.Radius = Q("0.375 in")

sketch14 = doc.addObject("Sketcher::SketchObject", "Sketch013")
body2.addObject(sketch14)
sketch14.AttachmentSupport = (doc.getObject("YZ_Plane001"), [""])
sketch14.MapMode = "FlatFace"
sketch14.AttachmentOffset = App.Placement(Vector(0, 0, 0.5 * 25.4), App.Rotation())
sketch14.addGeometry(Part.ArcOfCircle(Part.Circle(Vector(-40.031328, 302.062239, 0), Vector(0, 0, 1), 30.48), math.radians(-135.029402), math.radians(-108.281766)), False)
sketch14.addGeometry(Part.LineSegment(Vector(-61.595, 280.520687, 0), Vector(-61.595, 214.872158, 0)), False)
sketch14.addGeometry(Part.ArcOfCircle(Part.Circle(Vector(-53.975, 214.872158, 0), Vector(0, 0, 1), 7.62), math.radians(180), math.radians(201.620311)), False)
sketch14.addGeometry(Part.LineSegment(Vector(-61.058902, 212.064537, 0), Vector(-58.985106, 206.832147, 0)), False)
sketch14.addGeometry(Part.ArcOfCircle(Part.Circle(Vector(-51.901204, 209.639767, 0), Vector(0, 0, 1), 7.62), math.radians(-158.379689), math.radians(-152.507651)), False)
sketch14.addGeometry(Part.LineSegment(Vector(-58.660697, 206.122146, 0), Vector(-40.754269, 241.935, 0)), False)
sketch14.addGeometry(Part.LineSegment(Vector(-40.754269, 241.935, 0), Vector(32.197559, 241.935, 0)), False)
sketch14.addGeometry(Part.LineSegment(Vector(32.197559, 241.935, 0), Vector(31.610208, 243.416943, 0)), False)
sketch14.addGeometry(Part.ArcOfCircle(Part.Circle(Vector(24.526306, 240.609323, 0), Vector(0, 0, 1), 7.62), math.radians(21.620311), math.radians(71.718234)), False)
sketch14.addGeometry(Part.LineSegment(Vector(26.916626, 247.844706, 0), Vector(-49.592608, 273.120706, 0)), False)
sketch14.addConstraint(Sketcher.Constraint("Coincident", 0, 1, 1, 1))
sketch14.addConstraint(Sketcher.Constraint("Tangent", 1, 2, 2, 1))
sketch14.addConstraint(Sketcher.Constraint("Tangent", 2, 2, 3, 1))
sketch14.addConstraint(Sketcher.Constraint("Tangent", 3, 2, 4, 1))
sketch14.addConstraint(Sketcher.Constraint("Coincident", 4, 2, 5, 1))
sketch14.addConstraint(Sketcher.Constraint("Coincident", 5, 2, 6, 1))
sketch14.addConstraint(Sketcher.Constraint("Coincident", 6, 2, 7, 1))
sketch14.addConstraint(Sketcher.Constraint("Tangent", 7, 2, 8, 1))
sketch14.addConstraint(Sketcher.Constraint("Tangent", 8, 2, 9, 1))
sketch14.addConstraint(Sketcher.Constraint("Tangent", 9, 2, 0, 2))
sketch14.addConstraint(Sketcher.Constraint("Vertical", 1))
sketch14.addConstraint(Sketcher.Constraint("Horizontal", 6))
sketch14.addConstraint(Sketcher.Constraint("Equal", 2, 4))
sketch14.addConstraint(Sketcher.Constraint("Equal", 4, 8))
sketch14.addConstraint(Sketcher.Constraint("Parallel", 3, 7))
sketch14.addConstraint(Sketcher.Constraint("Radius", 0, Q("1.2 in")))
sketch14.addConstraint(Sketcher.Constraint("Radius", 2, Q("0.3 in")))
sketch14.addConstraint(Sketcher.Constraint("DistanceX", 2, 3, -1, 1, Q("2.125 in")))
sketch14.addConstraint(Sketcher.Constraint("DistanceY", -1, 1, 5, 2, Q("9.525 in")))
sketch14.addConstraint(Sketcher.Constraint("DistanceY", 1, 2, 1, 1, 65.648529))
sketch14.addConstraint(Sketcher.Constraint("DistanceX", 2, 2, -1, 1, 61.058902))
sketch14.addConstraint(Sketcher.Constraint("DistanceY", 4, 2, 3, 2, 0.710001))
sketch14.addConstraint(Sketcher.Constraint("Distance", 3, 5.628369))
sketch14.addConstraint(Sketcher.Constraint("Distance", 5, 40.039988))
sketch14.addConstraint(Sketcher.Constraint("DistanceX", 6, 1, 6, 2, 72.951828))
sketch14.addConstraint(Sketcher.Constraint("DistanceX", 0, 3, -1, 1, 40.031328))
sketch14.addConstraint(Sketcher.Constraint("DistanceY", -1, 1, 0, 3, 302.062239))
sketch14.addConstraint(Sketcher.Constraint("DistanceX", -1, 1, 7, 2, 31.610208))
pocket8 = doc.addObject("PartDesign::Pocket", "Pocket007")
body2.addObject(pocket8)
pocket8.Profile = sketch14
pocket8.Type = "ThroughAll"

sketch15 = doc.addObject("Sketcher::SketchObject", "Sketch014")
body2.addObject(sketch15)
sketch15.AttachmentSupport = (doc.getObject("YZ_Plane001"), [""])
sketch15.MapMode = "FlatFace"
sketch15.AttachmentOffset = App.Placement(Vector(0, 0, 0.5 * 25.4), App.Rotation())
sketch15.addGeometry(Part.ArcOfCircle(Part.Circle(Vector(24.526306, 240.609323, 0), Vector(0, 0, 1), 7.62), math.radians(21.620311), math.radians(71.718234)), False)
sketch15.addGeometry(Part.LineSegment(Vector(26.916626, 247.844706, 0), Vector(16.70094, 251.219615, 0)), False)
sketch15.addGeometry(Part.ArcOfCircle(Part.Circle(Vector(15.20699, 246.6975, 0), Vector(0, 0, 1), 4.7625), math.radians(-90), math.radians(71.718238)), False)
sketch15.addGeometry(Part.LineSegment(Vector(15.20699, 241.935, 0), Vector(32.197559, 241.935, 0)), False)
sketch15.addGeometry(Part.LineSegment(Vector(32.197559, 241.935, 0), Vector(31.610208, 243.416943, 0)), False)
sketch15.addGeometry(Part.ArcOfCircle(Part.Circle(Vector(-56.8325, 271.082336, 0), Vector(0, 0, 1), 4.7625), math.radians(61.527916), math.radians(180)), False)
sketch15.addGeometry(Part.ArcOfCircle(Part.Circle(Vector(-40.031328, 302.062239, 0), Vector(0, 0, 1), 30.48), math.radians(-135.029402), math.radians(-118.472076)), False)
sketch15.addGeometry(Part.LineSegment(Vector(-61.595, 280.520687, 0), Vector(-61.595, 271.082336, 0)), False)
sketch15.addGeometry(Part.LineSegment(Vector(-58.660697, 206.122146, 0), Vector(-52.572791, 218.297957, 0)), False)
sketch15.addGeometry(Part.ArcOfCircle(Part.Circle(Vector(-56.8325, 220.427812, 0), Vector(0, 0, 1), 4.7625), math.radians(-90), math.radians(-26.565054)), False)
sketch15.addGeometry(Part.ArcOfCircle(Part.Circle(Vector(-56.8325, 220.427812, 0), Vector(0, 0, 1), 4.7625), math.radians(180), math.radians(270)), False)
sketch15.addGeometry(Part.LineSegment(Vector(-61.595, 220.427812, 0), Vector(-61.595, 214.872158, 0)), False)
sketch15.addGeometry(Part.ArcOfCircle(Part.Circle(Vector(-53.975, 214.872158, 0), Vector(0, 0, 1), 7.62), math.radians(180), math.radians(201.620311)), False)
sketch15.addGeometry(Part.LineSegment(Vector(-61.058902, 212.064537, 0), Vector(-58.985106, 206.832147, 0)), False)
sketch15.addGeometry(Part.ArcOfCircle(Part.Circle(Vector(-51.901204, 209.639767, 0), Vector(0, 0, 1), 7.62), math.radians(-158.379689), math.radians(-152.507651)), False)
sketch15.addConstraint(Sketcher.Constraint("Tangent", 0, 2, 1, 1))
sketch15.addConstraint(Sketcher.Constraint("Tangent", 1, 2, 2, 2))
sketch15.addConstraint(Sketcher.Constraint("Tangent", 2, 1, 3, 1))
sketch15.addConstraint(Sketcher.Constraint("Coincident", 3, 2, 4, 1))
sketch15.addConstraint(Sketcher.Constraint("Tangent", 4, 2, 0, 1))
sketch15.addConstraint(Sketcher.Constraint("Tangent", 5, 1, 6, 2))
sketch15.addConstraint(Sketcher.Constraint("Coincident", 6, 1, 7, 1))
sketch15.addConstraint(Sketcher.Constraint("Tangent", 7, 2, 5, 2))
sketch15.addConstraint(Sketcher.Constraint("Tangent", 8, 2, 9, 2))
sketch15.addConstraint(Sketcher.Constraint("Tangent", 9, 1, 10, 2))
sketch15.addConstraint(Sketcher.Constraint("Tangent", 10, 1, 11, 1))
sketch15.addConstraint(Sketcher.Constraint("Tangent", 11, 2, 12, 1))
sketch15.addConstraint(Sketcher.Constraint("Tangent", 12, 2, 13, 1))
sketch15.addConstraint(Sketcher.Constraint("Tangent", 13, 2, 14, 1))
sketch15.addConstraint(Sketcher.Constraint("Coincident", 14, 2, 8, 1))
sketch15.addConstraint(Sketcher.Constraint("Horizontal", 3))
sketch15.addConstraint(Sketcher.Constraint("Vertical", 7))
sketch15.addConstraint(Sketcher.Constraint("Vertical", 11))
sketch15.addConstraint(Sketcher.Constraint("Equal", 2, 5))
sketch15.addConstraint(Sketcher.Constraint("Equal", 5, 9))
sketch15.addConstraint(Sketcher.Constraint("Equal", 9, 10))
sketch15.addConstraint(Sketcher.Constraint("Equal", 0, 12))
sketch15.addConstraint(Sketcher.Constraint("Equal", 12, 14))
sketch15.addConstraint(Sketcher.Constraint("Parallel", 4, 13))
sketch15.addConstraint(Sketcher.Constraint("Vertical", 5, 3, 9, 3))
sketch15.addConstraint(Sketcher.Constraint("Vertical", 10, 3, 9, 1))
sketch15.addConstraint(Sketcher.Constraint("Radius", 0, Q("0.3 in")))
sketch15.addConstraint(Sketcher.Constraint("Radius", 6, Q("1.2 in")))
sketch15.addConstraint(Sketcher.Constraint("Radius", 2, Q("0.1875 in")))
sketch15.addConstraint(Sketcher.Constraint("DistanceX", 12, 3, -1, 1, Q("2.125 in")))
sketch15.addConstraint(Sketcher.Constraint("DistanceY", -1, 1, 2, 1, Q("9.525 in")))
sketch15.addConstraint(Sketcher.Constraint("DistanceY", 8, 2, 5, 3, Q("2.0781251 in")))
sketch15.addConstraint(Sketcher.Constraint("DistanceX", 3, 1, 3, 2, 16.990568))
sketch15.addConstraint(Sketcher.Constraint("DistanceY", 7, 2, 7, 1, 9.438352))
sketch15.addConstraint(Sketcher.Constraint("DistanceX", 12, 2, -1, 1, 61.058902))
sketch15.addConstraint(Sketcher.Constraint("DistanceY", 12, 3, 8, 2, 3.4258))
sketch15.addConstraint(Sketcher.Constraint("DistanceY", 14, 2, 13, 2, 0.710001))
sketch15.addConstraint(Sketcher.Constraint("Distance", 1, 10.758729))
sketch15.addConstraint(Sketcher.Constraint("Distance", 8, 13.612971))
sketch15.addConstraint(Sketcher.Constraint("DistanceX", -1, 1, 2, 3, 15.20699))
sketch15.addConstraint(Sketcher.Constraint("DistanceY", -1, 1, 6, 3, 302.062239))
pad5 = doc.addObject("PartDesign::Pad", "Pad004")
body2.addObject(pad5)
pad5.Profile = sketch15
pad5.Length = Q("0.75 in")
pad5.Reversed = True
doc.recompute()

fillet3 = doc.addObject("PartDesign::Fillet", "Fillet002")
body2.addObject(fillet3)
fillet3.Base = (pad5, edges_at(pad5, [(3.175, -40.754, 241.935)]))
fillet3.Radius = Q("0.1875 in")

doc.recompute()
